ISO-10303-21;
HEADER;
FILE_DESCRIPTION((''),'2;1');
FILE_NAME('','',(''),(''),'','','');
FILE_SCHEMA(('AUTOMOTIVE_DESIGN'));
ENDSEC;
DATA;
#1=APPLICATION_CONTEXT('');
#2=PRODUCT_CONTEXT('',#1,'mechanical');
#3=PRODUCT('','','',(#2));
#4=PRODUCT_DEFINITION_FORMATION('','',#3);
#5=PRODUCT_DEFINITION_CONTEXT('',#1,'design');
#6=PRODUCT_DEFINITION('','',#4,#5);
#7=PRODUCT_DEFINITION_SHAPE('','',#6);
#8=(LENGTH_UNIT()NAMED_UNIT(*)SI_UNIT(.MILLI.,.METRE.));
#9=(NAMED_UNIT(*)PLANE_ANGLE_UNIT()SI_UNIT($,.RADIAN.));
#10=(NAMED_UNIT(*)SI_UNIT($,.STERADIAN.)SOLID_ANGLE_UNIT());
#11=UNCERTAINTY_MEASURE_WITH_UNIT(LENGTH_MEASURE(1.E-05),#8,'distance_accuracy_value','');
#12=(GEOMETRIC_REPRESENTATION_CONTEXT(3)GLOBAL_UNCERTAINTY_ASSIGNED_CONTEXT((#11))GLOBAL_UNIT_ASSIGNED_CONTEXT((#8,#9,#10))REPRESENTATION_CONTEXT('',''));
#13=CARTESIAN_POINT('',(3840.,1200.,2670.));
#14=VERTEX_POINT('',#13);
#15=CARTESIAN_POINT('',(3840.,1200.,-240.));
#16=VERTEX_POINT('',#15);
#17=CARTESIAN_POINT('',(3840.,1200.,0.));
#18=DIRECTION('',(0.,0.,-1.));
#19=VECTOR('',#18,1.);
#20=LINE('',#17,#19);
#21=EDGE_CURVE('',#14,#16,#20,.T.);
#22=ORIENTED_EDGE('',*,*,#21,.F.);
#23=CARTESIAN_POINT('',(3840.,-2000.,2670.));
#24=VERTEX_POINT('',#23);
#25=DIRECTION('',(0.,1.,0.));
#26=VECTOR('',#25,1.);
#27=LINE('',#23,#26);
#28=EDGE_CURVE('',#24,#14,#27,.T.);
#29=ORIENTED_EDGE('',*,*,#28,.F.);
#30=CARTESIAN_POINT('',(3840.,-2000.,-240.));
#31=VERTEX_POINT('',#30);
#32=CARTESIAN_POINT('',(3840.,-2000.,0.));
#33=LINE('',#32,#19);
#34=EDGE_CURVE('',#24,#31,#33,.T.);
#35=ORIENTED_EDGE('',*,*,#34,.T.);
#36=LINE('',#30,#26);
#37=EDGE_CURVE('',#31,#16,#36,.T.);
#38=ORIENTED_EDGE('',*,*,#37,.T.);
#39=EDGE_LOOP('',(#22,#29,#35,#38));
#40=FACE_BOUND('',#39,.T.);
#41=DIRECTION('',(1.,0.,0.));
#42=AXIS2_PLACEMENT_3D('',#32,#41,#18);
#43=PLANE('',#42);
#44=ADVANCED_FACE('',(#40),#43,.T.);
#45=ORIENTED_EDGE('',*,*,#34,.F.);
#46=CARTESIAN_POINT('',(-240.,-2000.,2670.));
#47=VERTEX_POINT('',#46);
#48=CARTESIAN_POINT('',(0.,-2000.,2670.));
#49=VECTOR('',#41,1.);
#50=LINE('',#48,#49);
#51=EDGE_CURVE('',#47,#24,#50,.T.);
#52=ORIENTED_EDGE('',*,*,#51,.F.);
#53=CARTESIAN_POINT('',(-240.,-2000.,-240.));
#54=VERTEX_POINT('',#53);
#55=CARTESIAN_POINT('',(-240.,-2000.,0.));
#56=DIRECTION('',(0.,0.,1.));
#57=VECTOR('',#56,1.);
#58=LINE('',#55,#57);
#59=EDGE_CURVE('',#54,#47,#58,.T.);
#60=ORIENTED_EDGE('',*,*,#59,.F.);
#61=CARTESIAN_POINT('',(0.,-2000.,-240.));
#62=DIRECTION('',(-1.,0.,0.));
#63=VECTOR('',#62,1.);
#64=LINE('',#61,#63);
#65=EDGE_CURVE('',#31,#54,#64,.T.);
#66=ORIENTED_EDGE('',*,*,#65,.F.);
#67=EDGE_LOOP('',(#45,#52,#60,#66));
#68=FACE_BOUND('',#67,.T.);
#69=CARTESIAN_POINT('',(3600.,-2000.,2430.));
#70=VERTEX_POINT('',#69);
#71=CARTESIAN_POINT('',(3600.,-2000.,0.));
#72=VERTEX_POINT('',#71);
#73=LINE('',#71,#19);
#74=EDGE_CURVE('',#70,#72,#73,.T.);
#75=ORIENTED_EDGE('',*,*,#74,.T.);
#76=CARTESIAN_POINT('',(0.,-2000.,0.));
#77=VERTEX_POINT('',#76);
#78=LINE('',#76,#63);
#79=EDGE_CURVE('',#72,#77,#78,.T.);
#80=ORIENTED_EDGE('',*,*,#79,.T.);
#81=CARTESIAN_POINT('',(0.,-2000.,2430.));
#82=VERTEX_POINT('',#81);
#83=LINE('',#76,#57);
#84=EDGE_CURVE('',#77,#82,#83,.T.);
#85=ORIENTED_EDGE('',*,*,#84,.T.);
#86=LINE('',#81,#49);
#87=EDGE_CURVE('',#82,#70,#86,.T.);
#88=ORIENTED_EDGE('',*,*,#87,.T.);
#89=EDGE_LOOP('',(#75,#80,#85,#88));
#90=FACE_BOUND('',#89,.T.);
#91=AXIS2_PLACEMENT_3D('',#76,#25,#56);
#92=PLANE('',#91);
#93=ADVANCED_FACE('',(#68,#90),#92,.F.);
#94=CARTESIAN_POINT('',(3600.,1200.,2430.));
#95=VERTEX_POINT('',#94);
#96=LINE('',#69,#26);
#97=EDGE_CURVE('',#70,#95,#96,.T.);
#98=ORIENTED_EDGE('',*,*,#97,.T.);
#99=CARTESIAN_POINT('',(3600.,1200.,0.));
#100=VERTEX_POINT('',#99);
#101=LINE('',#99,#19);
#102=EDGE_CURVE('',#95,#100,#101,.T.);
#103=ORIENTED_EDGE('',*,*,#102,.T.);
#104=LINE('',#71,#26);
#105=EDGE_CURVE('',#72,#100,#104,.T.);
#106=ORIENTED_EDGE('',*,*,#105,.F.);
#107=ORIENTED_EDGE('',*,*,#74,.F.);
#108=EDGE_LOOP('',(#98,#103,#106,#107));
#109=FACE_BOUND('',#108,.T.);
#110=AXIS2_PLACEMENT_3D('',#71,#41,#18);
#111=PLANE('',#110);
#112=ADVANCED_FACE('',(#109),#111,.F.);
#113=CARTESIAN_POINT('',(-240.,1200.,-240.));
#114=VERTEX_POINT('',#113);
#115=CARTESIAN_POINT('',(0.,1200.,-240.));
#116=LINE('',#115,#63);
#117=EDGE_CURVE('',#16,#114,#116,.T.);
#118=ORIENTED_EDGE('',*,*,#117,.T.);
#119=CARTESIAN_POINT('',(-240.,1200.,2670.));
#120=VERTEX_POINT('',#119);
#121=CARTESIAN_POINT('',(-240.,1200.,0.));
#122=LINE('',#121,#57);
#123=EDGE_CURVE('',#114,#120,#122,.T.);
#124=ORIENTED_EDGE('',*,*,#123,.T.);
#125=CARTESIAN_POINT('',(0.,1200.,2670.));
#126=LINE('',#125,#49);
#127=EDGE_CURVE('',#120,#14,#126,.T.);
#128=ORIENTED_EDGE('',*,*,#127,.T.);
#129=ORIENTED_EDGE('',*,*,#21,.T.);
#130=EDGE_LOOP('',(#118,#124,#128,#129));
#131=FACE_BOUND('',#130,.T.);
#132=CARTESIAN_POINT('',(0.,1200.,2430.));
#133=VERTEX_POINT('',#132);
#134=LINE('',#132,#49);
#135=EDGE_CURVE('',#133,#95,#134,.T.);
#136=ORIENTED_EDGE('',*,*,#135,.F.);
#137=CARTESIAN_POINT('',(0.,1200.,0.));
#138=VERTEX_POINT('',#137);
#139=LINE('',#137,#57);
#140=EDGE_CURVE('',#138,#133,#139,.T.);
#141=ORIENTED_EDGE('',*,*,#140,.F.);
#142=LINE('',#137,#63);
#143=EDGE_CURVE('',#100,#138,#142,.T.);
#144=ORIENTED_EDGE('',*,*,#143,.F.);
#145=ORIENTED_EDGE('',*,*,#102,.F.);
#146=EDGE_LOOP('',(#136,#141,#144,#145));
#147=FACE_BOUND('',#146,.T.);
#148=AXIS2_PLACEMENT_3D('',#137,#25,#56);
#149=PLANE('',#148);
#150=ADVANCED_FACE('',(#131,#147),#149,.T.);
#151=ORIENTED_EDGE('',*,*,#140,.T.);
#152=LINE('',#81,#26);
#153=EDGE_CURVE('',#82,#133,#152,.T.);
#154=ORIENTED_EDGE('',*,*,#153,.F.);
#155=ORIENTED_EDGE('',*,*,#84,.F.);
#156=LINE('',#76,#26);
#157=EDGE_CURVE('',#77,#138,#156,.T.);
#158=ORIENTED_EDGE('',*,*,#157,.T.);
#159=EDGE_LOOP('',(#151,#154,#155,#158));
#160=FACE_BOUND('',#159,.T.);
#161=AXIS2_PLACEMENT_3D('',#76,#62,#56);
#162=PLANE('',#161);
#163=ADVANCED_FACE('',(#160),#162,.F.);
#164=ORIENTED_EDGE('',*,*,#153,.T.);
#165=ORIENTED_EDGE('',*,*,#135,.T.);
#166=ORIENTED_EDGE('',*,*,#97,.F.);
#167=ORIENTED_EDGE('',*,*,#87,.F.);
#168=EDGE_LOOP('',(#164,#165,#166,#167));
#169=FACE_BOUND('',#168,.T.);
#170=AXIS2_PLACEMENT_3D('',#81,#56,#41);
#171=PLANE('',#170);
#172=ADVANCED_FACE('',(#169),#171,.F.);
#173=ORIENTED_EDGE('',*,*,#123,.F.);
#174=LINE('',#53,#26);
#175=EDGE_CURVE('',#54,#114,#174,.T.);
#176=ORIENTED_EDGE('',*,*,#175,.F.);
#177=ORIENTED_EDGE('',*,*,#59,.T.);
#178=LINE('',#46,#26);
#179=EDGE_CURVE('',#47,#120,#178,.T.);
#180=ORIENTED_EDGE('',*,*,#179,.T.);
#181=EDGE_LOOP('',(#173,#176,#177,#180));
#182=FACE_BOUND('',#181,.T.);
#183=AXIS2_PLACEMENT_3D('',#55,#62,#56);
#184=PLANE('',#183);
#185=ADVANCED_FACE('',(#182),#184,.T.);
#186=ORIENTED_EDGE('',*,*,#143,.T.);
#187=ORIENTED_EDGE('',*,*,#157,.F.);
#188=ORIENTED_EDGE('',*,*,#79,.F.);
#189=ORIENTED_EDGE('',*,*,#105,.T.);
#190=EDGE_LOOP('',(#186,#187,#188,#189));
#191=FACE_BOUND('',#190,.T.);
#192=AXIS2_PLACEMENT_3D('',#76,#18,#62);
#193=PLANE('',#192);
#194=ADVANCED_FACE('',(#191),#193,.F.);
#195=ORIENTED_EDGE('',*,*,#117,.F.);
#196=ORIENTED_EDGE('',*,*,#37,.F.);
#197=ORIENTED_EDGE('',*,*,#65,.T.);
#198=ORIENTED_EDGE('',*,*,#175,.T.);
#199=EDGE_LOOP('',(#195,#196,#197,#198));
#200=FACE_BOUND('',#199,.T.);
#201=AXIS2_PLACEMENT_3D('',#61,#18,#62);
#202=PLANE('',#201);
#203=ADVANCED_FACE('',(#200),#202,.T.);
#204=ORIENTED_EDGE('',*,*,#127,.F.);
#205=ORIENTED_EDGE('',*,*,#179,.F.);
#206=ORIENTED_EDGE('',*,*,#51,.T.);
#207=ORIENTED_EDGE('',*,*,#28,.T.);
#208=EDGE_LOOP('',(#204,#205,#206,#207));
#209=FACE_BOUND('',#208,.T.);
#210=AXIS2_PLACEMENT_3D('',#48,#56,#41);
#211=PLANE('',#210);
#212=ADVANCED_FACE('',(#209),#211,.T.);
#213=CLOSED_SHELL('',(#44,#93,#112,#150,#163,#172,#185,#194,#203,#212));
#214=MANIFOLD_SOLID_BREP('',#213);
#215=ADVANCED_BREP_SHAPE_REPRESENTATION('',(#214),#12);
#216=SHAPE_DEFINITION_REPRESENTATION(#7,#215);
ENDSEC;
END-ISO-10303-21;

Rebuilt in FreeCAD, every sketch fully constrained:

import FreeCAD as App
import Part
import Sketcher
from FreeCAD import Vector
Q = App.Units.Quantity


def add_polygon(sketch, points):
    """Adds a closed chain of lines whose ends are joined by coincident constraints."""
    first, n = sketch.GeometryCount, len(points)
    for a, b in zip(points, points[1:] + points[:1]):
        sketch.addGeometry(Part.LineSegment(App.Vector(*a, 0), App.Vector(*b, 0)), False)
    for i in range(n):
        sketch.addConstraint(Sketcher.Constraint("Coincident", first + i, 2, first + (i + 1) % n, 1))

doc = App.newDocument("Part")
body = doc.addObject("PartDesign::Body", "Body")

sketch1 = body.newObject("Sketcher::SketchObject", "Sketch")
sketch1.AttachmentSupport = (doc.getObject("XZ_Plane"), [""])
sketch1.MapMode = "FlatFace"
add_polygon(sketch1, [(-240, -240), (-240, 2670), (3840, 2670), (3840, -240)])
add_polygon(sketch1, [(3600, 2430), (0, 2430), (0, 0), (3600, 0)])
sketch1.addConstraint(Sketcher.Constraint("Vertical", 0))
sketch1.addConstraint(Sketcher.Constraint("Horizontal", 1))
sketch1.addConstraint(Sketcher.Constraint("Vertical", 2))
sketch1.addConstraint(Sketcher.Constraint("Horizontal", 3))
sketch1.addConstraint(Sketcher.Constraint("Horizontal", 4))
sketch1.addConstraint(Sketcher.Constraint("Vertical", 5))
sketch1.addConstraint(Sketcher.Constraint("Horizontal", 6))
sketch1.addConstraint(Sketcher.Constraint("Vertical", 7))
sketch1.addConstraint(Sketcher.Constraint("Coincident", 5, 2, -1, 1))
sketch1.addConstraint(Sketcher.Constraint("DistanceX", 1, 1, 1, 2, Q("4080 mm")))
sketch1.addConstraint(Sketcher.Constraint("DistanceX", 4, 2, 4, 1, Q("3600 mm")))
sketch1.addConstraint(Sketcher.Constraint("DistanceY", 0, 1, 0, 2, Q("2910 mm")))
sketch1.addConstraint(Sketcher.Constraint("DistanceY", 5, 2, 5, 1, Q("2430 mm")))
sketch1.addConstraint(Sketcher.Constraint("DistanceX", 0, 2, -1, 1, Q("240 mm")))
sketch1.addConstraint(Sketcher.Constraint("DistanceY", -1, 1, 0, 2, Q("2670 mm")))
pad1 = body.newObject("PartDesign::Pad", "Pad")
pad1.Profile = sketch1
pad1.Type = "TwoLengths"
pad1.Length = 1200
pad1.Length2 = 2000
pad1.Reversed = True

doc.recompute()
